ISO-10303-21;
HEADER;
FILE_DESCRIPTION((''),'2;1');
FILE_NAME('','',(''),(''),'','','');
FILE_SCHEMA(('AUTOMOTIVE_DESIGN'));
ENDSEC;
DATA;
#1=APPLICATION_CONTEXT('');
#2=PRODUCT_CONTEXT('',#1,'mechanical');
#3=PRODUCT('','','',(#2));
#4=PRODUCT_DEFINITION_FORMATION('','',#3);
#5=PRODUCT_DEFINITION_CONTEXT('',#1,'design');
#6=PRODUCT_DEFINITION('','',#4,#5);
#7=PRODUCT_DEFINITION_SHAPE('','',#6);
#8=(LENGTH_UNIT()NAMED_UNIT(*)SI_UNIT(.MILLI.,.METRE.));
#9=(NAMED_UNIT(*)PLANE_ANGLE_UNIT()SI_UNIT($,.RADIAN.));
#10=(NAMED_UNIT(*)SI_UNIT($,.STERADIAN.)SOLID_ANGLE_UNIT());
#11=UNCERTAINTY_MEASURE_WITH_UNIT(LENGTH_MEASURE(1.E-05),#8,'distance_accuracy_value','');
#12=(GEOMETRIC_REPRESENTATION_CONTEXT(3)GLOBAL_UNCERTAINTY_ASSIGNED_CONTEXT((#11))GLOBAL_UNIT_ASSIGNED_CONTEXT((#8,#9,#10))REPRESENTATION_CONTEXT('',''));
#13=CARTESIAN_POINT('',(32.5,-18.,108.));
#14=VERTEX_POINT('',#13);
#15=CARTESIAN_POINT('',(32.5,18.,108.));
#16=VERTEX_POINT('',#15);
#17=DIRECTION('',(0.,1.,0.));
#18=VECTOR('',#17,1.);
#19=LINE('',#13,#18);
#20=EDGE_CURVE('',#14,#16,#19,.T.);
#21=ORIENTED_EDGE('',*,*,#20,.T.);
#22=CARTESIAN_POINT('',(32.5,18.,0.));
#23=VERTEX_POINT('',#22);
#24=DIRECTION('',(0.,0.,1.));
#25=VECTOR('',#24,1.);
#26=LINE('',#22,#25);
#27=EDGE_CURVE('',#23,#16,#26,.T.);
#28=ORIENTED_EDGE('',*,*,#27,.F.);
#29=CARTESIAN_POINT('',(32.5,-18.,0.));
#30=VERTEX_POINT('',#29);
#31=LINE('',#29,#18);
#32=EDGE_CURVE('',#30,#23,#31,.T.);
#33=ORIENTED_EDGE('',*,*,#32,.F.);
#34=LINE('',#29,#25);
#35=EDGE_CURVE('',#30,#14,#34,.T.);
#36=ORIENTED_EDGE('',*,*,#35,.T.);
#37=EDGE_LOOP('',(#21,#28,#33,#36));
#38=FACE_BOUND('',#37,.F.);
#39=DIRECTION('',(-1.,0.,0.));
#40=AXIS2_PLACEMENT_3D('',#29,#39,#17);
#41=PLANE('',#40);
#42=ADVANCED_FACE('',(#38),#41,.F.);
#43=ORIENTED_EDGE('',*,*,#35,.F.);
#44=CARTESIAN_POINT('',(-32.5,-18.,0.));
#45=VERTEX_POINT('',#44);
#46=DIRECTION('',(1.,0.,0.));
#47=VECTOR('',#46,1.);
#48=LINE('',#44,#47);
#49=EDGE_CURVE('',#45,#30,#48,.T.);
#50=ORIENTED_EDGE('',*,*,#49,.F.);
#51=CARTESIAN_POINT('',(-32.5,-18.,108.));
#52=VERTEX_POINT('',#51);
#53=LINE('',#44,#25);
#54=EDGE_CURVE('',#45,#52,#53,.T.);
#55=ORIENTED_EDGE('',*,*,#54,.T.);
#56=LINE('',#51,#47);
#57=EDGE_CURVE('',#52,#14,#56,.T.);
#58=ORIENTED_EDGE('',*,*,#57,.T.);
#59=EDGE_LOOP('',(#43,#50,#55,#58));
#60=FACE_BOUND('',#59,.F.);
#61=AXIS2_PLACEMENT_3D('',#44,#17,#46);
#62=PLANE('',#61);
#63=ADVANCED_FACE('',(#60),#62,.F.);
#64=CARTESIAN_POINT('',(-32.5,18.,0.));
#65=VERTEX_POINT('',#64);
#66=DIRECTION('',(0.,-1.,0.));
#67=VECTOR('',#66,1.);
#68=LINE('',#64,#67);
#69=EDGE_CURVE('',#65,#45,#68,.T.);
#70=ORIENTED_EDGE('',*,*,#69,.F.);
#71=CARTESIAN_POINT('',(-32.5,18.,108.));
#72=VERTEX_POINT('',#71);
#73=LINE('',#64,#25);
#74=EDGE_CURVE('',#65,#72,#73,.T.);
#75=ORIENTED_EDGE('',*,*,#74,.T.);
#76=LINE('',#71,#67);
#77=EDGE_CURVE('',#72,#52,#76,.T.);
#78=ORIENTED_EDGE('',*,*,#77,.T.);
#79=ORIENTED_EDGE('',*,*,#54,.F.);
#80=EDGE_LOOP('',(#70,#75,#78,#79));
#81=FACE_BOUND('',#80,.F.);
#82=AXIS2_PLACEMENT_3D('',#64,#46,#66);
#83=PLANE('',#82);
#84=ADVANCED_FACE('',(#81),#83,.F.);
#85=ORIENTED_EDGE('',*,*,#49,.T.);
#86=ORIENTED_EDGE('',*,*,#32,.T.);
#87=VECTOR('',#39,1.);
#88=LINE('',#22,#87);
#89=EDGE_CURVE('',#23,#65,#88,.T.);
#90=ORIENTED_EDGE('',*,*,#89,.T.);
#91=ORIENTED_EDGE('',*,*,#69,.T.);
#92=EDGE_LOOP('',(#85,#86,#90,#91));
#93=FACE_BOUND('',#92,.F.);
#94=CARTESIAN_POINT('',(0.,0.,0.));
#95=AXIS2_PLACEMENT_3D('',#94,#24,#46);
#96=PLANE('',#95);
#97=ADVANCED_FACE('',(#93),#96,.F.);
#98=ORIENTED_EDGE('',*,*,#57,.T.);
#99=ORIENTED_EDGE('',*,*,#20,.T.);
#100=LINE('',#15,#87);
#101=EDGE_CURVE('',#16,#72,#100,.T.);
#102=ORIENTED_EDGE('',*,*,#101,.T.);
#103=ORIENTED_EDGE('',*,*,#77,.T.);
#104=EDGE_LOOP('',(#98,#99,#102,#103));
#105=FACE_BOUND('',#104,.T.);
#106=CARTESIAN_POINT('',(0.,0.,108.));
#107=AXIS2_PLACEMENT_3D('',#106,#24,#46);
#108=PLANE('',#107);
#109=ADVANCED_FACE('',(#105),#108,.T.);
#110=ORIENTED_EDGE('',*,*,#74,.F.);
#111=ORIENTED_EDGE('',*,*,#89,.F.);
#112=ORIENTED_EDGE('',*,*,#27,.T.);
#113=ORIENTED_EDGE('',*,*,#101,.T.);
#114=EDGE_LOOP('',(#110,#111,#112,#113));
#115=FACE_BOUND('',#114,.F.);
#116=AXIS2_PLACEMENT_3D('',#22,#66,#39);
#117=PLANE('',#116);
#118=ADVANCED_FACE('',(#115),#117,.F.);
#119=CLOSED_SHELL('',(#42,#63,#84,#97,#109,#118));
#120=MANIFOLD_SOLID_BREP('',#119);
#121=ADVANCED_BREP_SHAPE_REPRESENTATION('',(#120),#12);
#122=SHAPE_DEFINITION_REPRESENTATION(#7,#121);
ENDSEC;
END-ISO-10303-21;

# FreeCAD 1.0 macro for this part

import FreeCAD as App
import Part
import Sketcher
from FreeCAD import Vector
Q = App.Units.Quantity

doc = App.newDocument("Part")
body = doc.addObject("PartDesign::Body", "Body")

sketch1 = body.newObject("Sketcher::SketchObject", "Sketch")
sketch1.AttachmentSupport = (doc.getObject("XY_Plane"), [""])
sketch1.MapMode = "FlatFace"
sketch1.addGeometry(Part.LineSegment(Vector(-32, 18, 0), Vector(-32, -18, 0)), False)
sketch1.addGeometry(Part.LineSegment(Vector(-32, -18, 0), Vector(32, -18, 0)), False)
sketch1.addGeometry(Part.LineSegment(Vector(32, -18, 0), Vector(32, 18, 0)), False)
sketch1.addGeometry(Part.LineSegment(Vector(32, 18, 0), Vector(-32, 18, 0)), False)
sketch1.addConstraint(Sketcher.Constraint("Coincident", 0, 2, 1, 1))
sketch1.addConstraint(Sketcher.Constraint("Coincident", 1, 2, 2, 1))
sketch1.addConstraint(Sketcher.Constraint("Coincident", 2, 2, 3, 1))
sketch1.addConstraint(Sketcher.Constraint("Coincident", 3, 2, 0, 1))
sketch1.addConstraint(Sketcher.Constraint("Vertical", 0))
sketch1.addConstraint(Sketcher.Constraint("Horizontal", 1))
sketch1.addConstraint(Sketcher.Constraint("Vertical", 2))
sketch1.addConstraint(Sketcher.Constraint("Horizontal", 3))
sketch1.addConstraint(Sketcher.Constraint("Symmetric", 0, 2, 2, 2, -1, 1))
sketch1.addConstraint(Sketcher.Constraint("DistanceX", 1, 1, 1, 2, Q("65 mm")))
sketch1.addConstraint(Sketcher.Constraint("DistanceY", 0, 2, 0, 1, Q("36 mm")))
pad1 = body.newObject("PartDesign::Pad", "Pad")
pad1.Profile = sketch1
pad1.Length = 108

doc.recompute()
